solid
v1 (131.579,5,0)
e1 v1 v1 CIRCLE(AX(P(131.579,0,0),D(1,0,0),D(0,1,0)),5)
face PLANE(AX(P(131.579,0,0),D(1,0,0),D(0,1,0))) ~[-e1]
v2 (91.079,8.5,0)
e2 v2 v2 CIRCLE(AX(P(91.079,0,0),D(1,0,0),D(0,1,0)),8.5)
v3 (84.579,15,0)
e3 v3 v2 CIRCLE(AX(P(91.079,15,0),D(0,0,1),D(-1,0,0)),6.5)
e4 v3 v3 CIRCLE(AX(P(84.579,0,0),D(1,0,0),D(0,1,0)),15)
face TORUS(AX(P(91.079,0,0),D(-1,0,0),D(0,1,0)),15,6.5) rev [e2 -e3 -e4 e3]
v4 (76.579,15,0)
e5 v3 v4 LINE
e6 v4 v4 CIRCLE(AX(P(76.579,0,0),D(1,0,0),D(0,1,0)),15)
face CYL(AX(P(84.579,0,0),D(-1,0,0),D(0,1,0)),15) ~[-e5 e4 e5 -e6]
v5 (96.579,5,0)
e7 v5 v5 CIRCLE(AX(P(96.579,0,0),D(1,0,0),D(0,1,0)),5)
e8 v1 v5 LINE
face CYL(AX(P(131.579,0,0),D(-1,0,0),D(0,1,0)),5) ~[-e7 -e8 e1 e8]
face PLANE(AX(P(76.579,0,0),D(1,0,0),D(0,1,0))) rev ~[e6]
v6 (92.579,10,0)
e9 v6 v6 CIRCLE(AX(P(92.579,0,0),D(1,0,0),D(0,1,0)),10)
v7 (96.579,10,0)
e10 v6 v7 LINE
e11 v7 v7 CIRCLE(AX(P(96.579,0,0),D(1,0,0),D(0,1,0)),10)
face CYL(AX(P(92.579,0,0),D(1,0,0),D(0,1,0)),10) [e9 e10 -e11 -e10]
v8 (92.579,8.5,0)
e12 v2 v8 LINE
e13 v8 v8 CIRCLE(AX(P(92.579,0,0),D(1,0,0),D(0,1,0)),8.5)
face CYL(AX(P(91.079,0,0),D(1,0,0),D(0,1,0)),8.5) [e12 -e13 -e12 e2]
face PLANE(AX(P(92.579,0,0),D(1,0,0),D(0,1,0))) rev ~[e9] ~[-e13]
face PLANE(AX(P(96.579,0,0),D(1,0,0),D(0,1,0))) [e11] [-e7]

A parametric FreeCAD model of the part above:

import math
import FreeCAD as App
import Part
import Sketcher
Q = App.Units.Quantity

doc = App.newDocument("Part")
params = doc.addObject("Spreadsheet::Sheet", "Params")
for row, (alias, value) in enumerate([
    ("sketch1_radius", "6.5 mm"),
    ("sketch1_width", "55 mm"),
    ("sketch1_width2", "35 mm"),
    ("sketch1_width3", "4 mm"),
    ("sketch1_width4", "8 mm"),
    ("revolution_angle", "360 deg"),
], start=1):
    params.set(f"A{row}", alias)
    params.set(f"B{row}", "=" + value)
    params.setAlias(f"B{row}", alias)

body = doc.addObject("PartDesign::Body", "Body")

# Sketch on XY plane
sketch1 = body.newObject("Sketcher::SketchObject", "Sketch")
sketch1.AttachmentSupport = (doc.getObject("XY_Plane"), [""])
sketch1.MapMode = "FlatFace"
sketch1.addGeometry(Part.LineSegment(App.Vector(76.6, 15, 0), App.Vector(76.6, 0, 0)), False)
sketch1.addGeometry(Part.LineSegment(App.Vector(76.6, 0, 0), App.Vector(131.6, 0, 0)), False)
sketch1.addGeometry(Part.LineSegment(App.Vector(131.6, 0, 0), App.Vector(131.6, 5, 0)), False)
sketch1.addGeometry(Part.LineSegment(App.Vector(131.6, 5, 0), App.Vector(96.6, 5, 0)), False)
sketch1.addGeometry(Part.LineSegment(App.Vector(96.6, 5, 0), App.Vector(96.6, 10, 0)), False)
sketch1.addGeometry(Part.LineSegment(App.Vector(96.6, 10, 0), App.Vector(92.6, 10, 0)), False)
sketch1.addGeometry(Part.LineSegment(App.Vector(92.6, 10, 0), App.Vector(92.6, 8.5, 0)), False)
sketch1.addGeometry(Part.LineSegment(App.Vector(92.6, 8.5, 0), App.Vector(91.1, 8.5, 0)), False)
sketch1.addGeometry(Part.ArcOfCircle(Part.Circle(App.Vector(91.1, 15, 0), App.Vector(0, 0, 1), 6.5), math.radians(180), math.radians(270)), False)
sketch1.addGeometry(Part.LineSegment(App.Vector(84.6, 15, 0), App.Vector(76.6, 15, 0)), False)
sketch1.addConstraint(Sketcher.Constraint("Coincident", 0, 2, 1, 1))
sketch1.addConstraint(Sketcher.Constraint("Coincident", 1, 2, 2, 1))
sketch1.addConstraint(Sketcher.Constraint("Coincident", 2, 2, 3, 1))
sketch1.addConstraint(Sketcher.Constraint("Coincident", 3, 2, 4, 1))
sketch1.addConstraint(Sketcher.Constraint("Coincident", 4, 2, 5, 1))
sketch1.addConstraint(Sketcher.Constraint("Coincident", 5, 2, 6, 1))
sketch1.addConstraint(Sketcher.Constraint("Coincident", 6, 2, 7, 1))
sketch1.addConstraint(Sketcher.Constraint("Tangent", 7, 2, 8, 2))
sketch1.addConstraint(Sketcher.Constraint("Coincident", 8, 1, 9, 1))
sketch1.addConstraint(Sketcher.Constraint("Coincident", 9, 2, 0, 1))
sketch1.addConstraint(Sketcher.Constraint("Vertical", 0))
sketch1.addConstraint(Sketcher.Constraint("Horizontal", 1))
sketch1.addConstraint(Sketcher.Constraint("Vertical", 2))
sketch1.addConstraint(Sketcher.Constraint("Horizontal", 3))
sketch1.addConstraint(Sketcher.Constraint("Vertical", 4))
sketch1.addConstraint(Sketcher.Constraint("Horizontal", 5))
sketch1.addConstraint(Sketcher.Constraint("Vertical", 6))
sketch1.addConstraint(Sketcher.Constraint("Horizontal", 7))
sketch1.addConstraint(Sketcher.Constraint("Horizontal", 9))
sketch1.addConstraint(Sketcher.Constraint("PointOnObject", 0, 2, -1))
sketch1.addConstraint(Sketcher.Constraint("Equal", 2, 4))
sketch1.addConstraint(Sketcher.Constraint("Equal", 7, 6))
sketch1.addConstraint(Sketcher.Constraint("Radius", 8, Q("6.5 mm")))
sketch1.addConstraint(Sketcher.Constraint("DistanceX", 1, 1, 1, 2, Q("55 mm")))
sketch1.addConstraint(Sketcher.Constraint("DistanceX", 3, 2, 3, 1, Q("35 mm")))
sketch1.addConstraint(Sketcher.Constraint("DistanceX", 5, 2, 5, 1, Q("4 mm")))
sketch1.addConstraint(Sketcher.Constraint("DistanceX", 9, 2, 9, 1, Q("8 mm")))
sketch1.addConstraint(Sketcher.Constraint("DistanceY", 0, 2, 0, 1, Q("15 mm")))
sketch1.addConstraint(Sketcher.Constraint("DistanceY", 2, 1, 2, 2, Q("5 mm")))
sketch1.addConstraint(Sketcher.Constraint("DistanceX", -1, 1, 8, 3, Q("91.079 mm")))
sketch1.setExpression("Constraints[22]", "Params.sketch1_radius")
sketch1.setExpression("Constraints[23]", "Params.sketch1_width")
sketch1.setExpression("Constraints[24]", "Params.sketch1_width2")
sketch1.setExpression("Constraints[25]", "Params.sketch1_width3")
sketch1.setExpression("Constraints[26]", "Params.sketch1_width4")
revolution = body.newObject("PartDesign::Revolution", "Revolution")
revolution.Profile = sketch1
revolution.ReferenceAxis = (sketch1, ["H_Axis"])
revolution.setExpression("Angle", "Params.revolution_angle")

doc.recompute()
